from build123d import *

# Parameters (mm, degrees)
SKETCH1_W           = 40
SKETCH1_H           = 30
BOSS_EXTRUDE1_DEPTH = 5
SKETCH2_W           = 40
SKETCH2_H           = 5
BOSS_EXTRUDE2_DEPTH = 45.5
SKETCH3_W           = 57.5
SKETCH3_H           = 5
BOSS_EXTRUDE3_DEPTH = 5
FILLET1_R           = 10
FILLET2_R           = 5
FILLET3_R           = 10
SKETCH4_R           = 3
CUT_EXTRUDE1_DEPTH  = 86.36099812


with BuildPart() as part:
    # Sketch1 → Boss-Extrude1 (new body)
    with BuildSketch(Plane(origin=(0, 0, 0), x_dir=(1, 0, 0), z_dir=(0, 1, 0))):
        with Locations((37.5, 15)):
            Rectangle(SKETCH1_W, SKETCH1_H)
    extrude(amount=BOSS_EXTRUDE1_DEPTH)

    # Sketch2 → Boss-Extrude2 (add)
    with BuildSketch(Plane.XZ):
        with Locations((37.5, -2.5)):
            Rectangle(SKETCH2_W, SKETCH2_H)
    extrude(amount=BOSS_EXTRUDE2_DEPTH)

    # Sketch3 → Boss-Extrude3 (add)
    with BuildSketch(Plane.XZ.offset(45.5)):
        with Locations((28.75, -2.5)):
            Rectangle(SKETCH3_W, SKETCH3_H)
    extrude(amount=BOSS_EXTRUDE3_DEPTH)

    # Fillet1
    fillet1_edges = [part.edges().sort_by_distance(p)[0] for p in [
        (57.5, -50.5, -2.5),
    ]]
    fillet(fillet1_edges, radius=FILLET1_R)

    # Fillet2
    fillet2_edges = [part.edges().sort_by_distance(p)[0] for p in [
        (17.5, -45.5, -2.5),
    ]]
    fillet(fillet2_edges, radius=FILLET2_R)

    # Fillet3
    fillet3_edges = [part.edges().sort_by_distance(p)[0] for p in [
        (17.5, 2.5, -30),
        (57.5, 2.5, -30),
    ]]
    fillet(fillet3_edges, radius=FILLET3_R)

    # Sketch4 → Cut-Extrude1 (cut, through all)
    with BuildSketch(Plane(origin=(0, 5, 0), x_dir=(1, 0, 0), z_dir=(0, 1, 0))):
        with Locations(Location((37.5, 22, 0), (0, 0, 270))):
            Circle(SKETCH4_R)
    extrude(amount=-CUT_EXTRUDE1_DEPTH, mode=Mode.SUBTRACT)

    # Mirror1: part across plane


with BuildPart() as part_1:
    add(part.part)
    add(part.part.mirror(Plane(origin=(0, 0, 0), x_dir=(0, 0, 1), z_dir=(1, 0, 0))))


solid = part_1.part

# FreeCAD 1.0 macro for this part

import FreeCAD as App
import Part
import Sketcher


def edges_at(feature, points):
    """Names of the edges that pass closest to the given points."""
    edges = feature.Shape.Edges
    near = lambda p: min(range(len(edges)), key=lambda i: edges[i].distToShape(Part.Vertex(*p))[0])
    return sorted({f"Edge{near(p) + 1}" for p in points})

doc = App.newDocument("Part")
params = doc.addObject("Spreadsheet::Sheet", "Params")
for row, (alias, value) in enumerate([
    ("sketch1_width", "40 mm"),
    ("sketch1_height", "30 mm"),
    ("pad1_length", "5 mm"),
    ("sketch2_width", "40 mm"),
    ("sketch2_height", "5 mm"),
    ("pad2_length", "45.5 mm"),
    ("sketch3_height", "5 mm"),
    ("sketch3_width", "57.5 mm"),
    ("pad3_length", "5 mm"),
    ("fillet_radius", "10 mm"),
    ("fillet2_radius", "5 mm"),
    ("fillet3_radius", "10 mm"),
    ("sketch4_diameter", "6 mm"),
], start=1):
    params.set(f"A{row}", alias)
    params.set(f"B{row}", "=" + value)
    params.setAlias(f"B{row}", alias)

body = doc.addObject("PartDesign::Body", "Body")

sketch1 = body.newObject("Sketcher::SketchObject", "Sketch")
sketch1.AttachmentSupport = (doc.getObject("XZ_Plane"), [""])
sketch1.MapMode = "FlatFace"
sketch1.addGeometry([
    Part.LineSegment(App.Vector(18, -30, 0), App.Vector(18, 0, 0)),
    Part.LineSegment(App.Vector(18, 0, 0), App.Vector(58, 0, 0)),
    Part.LineSegment(App.Vector(58, 0, 0), App.Vector(58, -30, 0)),
    Part.LineSegment(App.Vector(58, -30, 0), App.Vector(18, -30, 0)),
], False)
sketch1.addConstraint([
    Sketcher.Constraint("Coincident", 0, 2, 1, 1),
    Sketcher.Constraint("Coincident", 1, 2, 2, 1),
    Sketcher.Constraint("Coincident", 2, 2, 3, 1),
    Sketcher.Constraint("Coincident", 3, 2, 0, 1),
    Sketcher.Constraint("Vertical", 0),
    Sketcher.Constraint("Horizontal", 1),
    Sketcher.Constraint("Vertical", 2),
    Sketcher.Constraint("Horizontal", 3),
    Sketcher.Constraint("PointOnObject", 0, 2, -1),
    Sketcher.Constraint("DistanceX", 1, 1, 1, 2, 40.0),
    Sketcher.Constraint("DistanceY", 0, 1, 0, 2, 30.0),
    Sketcher.Constraint("DistanceX", -1, 1, 0, 2, 17.5),
])
sketch1.setExpression("Constraints[9]", "Params.sketch1_width")
sketch1.setExpression("Constraints[10]", "Params.sketch1_height")
pad1 = body.newObject("PartDesign::Pad", "Pad")
pad1.Profile = sketch1
pad1.setExpression("Length", "Params.pad1_length")
pad1.Reversed = True

sketch2 = body.newObject("Sketcher::SketchObject", "Sketch001")
sketch2.AttachmentSupport = (doc.getObject("XZ_Plane"), [""])
sketch2.MapMode = "FlatFace"
sketch2.addGeometry([
    Part.LineSegment(App.Vector(18, 0, 0), App.Vector(18, -5, 0)),
    Part.LineSegment(App.Vector(18, -5, 0), App.Vector(58, -5, 0)),
    Part.LineSegment(App.Vector(58, -5, 0), App.Vector(58, 0, 0)),
    Part.LineSegment(App.Vector(58, 0, 0), App.Vector(18, 0, 0)),
], False)
sketch2.addConstraint([
    Sketcher.Constraint("Coincident", 0, 2, 1, 1),
    Sketcher.Constraint("Coincident", 1, 2, 2, 1),
    Sketcher.Constraint("Coincident", 2, 2, 3, 1),
    Sketcher.Constraint("Coincident", 3, 2, 0, 1),
    Sketcher.Constraint("Vertical", 0),
    Sketcher.Constraint("Horizontal", 1),
    Sketcher.Constraint("Vertical", 2),
    Sketcher.Constraint("Horizontal", 3),
    Sketcher.Constraint("PointOnObject", 2, 2, -1),
    Sketcher.Constraint("DistanceX", 1, 1, 1, 2, 40.0),
    Sketcher.Constraint("DistanceY", 0, 2, 0, 1, 5.0),
    Sketcher.Constraint("DistanceX", -1, 1, 0, 2, 17.5),
])
sketch2.setExpression("Constraints[9]", "Params.sketch2_width")
sketch2.setExpression("Constraints[10]", "Params.sketch2_height")
pad2 = body.newObject("PartDesign::Pad", "Pad001")
pad2.Profile = sketch2
pad2.setExpression("Length", "Params.pad2_length")

sketch3 = body.newObject("Sketcher::SketchObject", "Sketch002")
sketch3.AttachmentSupport = (doc.getObject("XZ_Plane"), [""])
sketch3.MapMode = "FlatFace"
sketch3.AttachmentOffset = App.Placement(App.Vector(0, 0, 45.5), App.Rotation())
sketch3.addGeometry([
    Part.LineSegment(App.Vector(0, 0, 0), App.Vector(0, -5, 0)),
    Part.LineSegment(App.Vector(0, -5, 0), App.Vector(58, -5, 0)),
    Part.LineSegment(App.Vector(58, -5, 0), App.Vector(58, 0, 0)),
    Part.LineSegment(App.Vector(58, 0, 0), App.Vector(0, 0, 0)),
], False)
sketch3.addConstraint([
    Sketcher.Constraint("Coincident", 0, 2, 1, 1),
    Sketcher.Constraint("Coincident", 1, 2, 2, 1),
    Sketcher.Constraint("Coincident", 2, 2, 3, 1),
    Sketcher.Constraint("Coincident", 3, 2, 0, 1),
    Sketcher.Constraint("Vertical", 0),
    Sketcher.Constraint("Horizontal", 1),
    Sketcher.Constraint("Vertical", 2),
    Sketcher.Constraint("Horizontal", 3),
    Sketcher.Constraint("Coincident", 3, 2, -1, 1),
    Sketcher.Constraint("DistanceY", 0, 2, 0, 1, 5.0),
    Sketcher.Constraint("DistanceX", 1, 1, 1, 2, 57.5),
])
sketch3.setExpression("Constraints[9]", "Params.sketch3_height")
sketch3.setExpression("Constraints[10]", "Params.sketch3_width")
pad3 = body.newObject("PartDesign::Pad", "Pad002")
pad3.Profile = sketch3
pad3.setExpression("Length", "Params.pad3_length")
doc.recompute()

fillet = body.newObject("PartDesign::Fillet", "Fillet")
fillet.Base = (pad3, edges_at(pad3, [(57.5, -50.5, -2.5)]))
fillet.setExpression("Radius", "Params.fillet_radius")
doc.recompute()

fillet2 = body.newObject("PartDesign::Fillet", "Fillet001")
fillet2.Base = (fillet, edges_at(fillet, [(17.5, -45.5, -2.5)]))
fillet2.setExpression("Radius", "Params.fillet2_radius")
doc.recompute()

fillet3 = body.newObject("PartDesign::Fillet", "Fillet002")
fillet3.Base = (fillet2, edges_at(fillet2, [(17.5, 2.5, -30), (57.5, 2.5, -30)]))
fillet3.setExpression("Radius", "Params.fillet3_radius")

sketch4 = body.newObject("Sketcher::SketchObject", "Sketch003")
sketch4.AttachmentSupport = (doc.getObject("XZ_Plane"), [""])
sketch4.MapMode = "FlatFace"
sketch4.AttachmentOffset = App.Placement(App.Vector(0, 0, -5), App.Rotation())
sketch4.addGeometry(Part.Circle(App.Vector(37.5, -22, 0), App.Vector(0, 0, 1), 3), False)
sketch4.addConstraint([
    Sketcher.Constraint("Diameter", 0, 6.0),
    Sketcher.Constraint("DistanceY", 0, 3, -1, 1, 22.0),
    Sketcher.Constraint("DistanceX", -1, 1, 0, 3, 37.5),
])
sketch4.setExpression("Constraints[0]", "Params.sketch4_diameter")
pocket1 = body.newObject("PartDesign::Pocket", "Pocket")
pocket1.Profile = sketch4
pocket1.Type = "ThroughAll"
pocket1.Reversed = True
body2 = doc.addObject("PartDesign::Body", "Body001")
doc.recompute()

body2.BaseFeature = body
doc.recompute()

mirroring = doc.addObject("Part::Mirroring", "Mirroring")
mirroring.Source = body
mirroring.Base = App.Vector(0, 0, 0)
mirroring.Normal = App.Vector(1, 0, 0)
body3 = doc.addObject("PartDesign::Body", "Body002")
body3.BaseFeature = mirroring
boolean = body2.newObject("PartDesign::Boolean", "Boolean")
boolean.Type = "Fuse"
boolean.addObjects([body3])
doc.recompute()
mirroring.Visibility = False

doc.recompute()
